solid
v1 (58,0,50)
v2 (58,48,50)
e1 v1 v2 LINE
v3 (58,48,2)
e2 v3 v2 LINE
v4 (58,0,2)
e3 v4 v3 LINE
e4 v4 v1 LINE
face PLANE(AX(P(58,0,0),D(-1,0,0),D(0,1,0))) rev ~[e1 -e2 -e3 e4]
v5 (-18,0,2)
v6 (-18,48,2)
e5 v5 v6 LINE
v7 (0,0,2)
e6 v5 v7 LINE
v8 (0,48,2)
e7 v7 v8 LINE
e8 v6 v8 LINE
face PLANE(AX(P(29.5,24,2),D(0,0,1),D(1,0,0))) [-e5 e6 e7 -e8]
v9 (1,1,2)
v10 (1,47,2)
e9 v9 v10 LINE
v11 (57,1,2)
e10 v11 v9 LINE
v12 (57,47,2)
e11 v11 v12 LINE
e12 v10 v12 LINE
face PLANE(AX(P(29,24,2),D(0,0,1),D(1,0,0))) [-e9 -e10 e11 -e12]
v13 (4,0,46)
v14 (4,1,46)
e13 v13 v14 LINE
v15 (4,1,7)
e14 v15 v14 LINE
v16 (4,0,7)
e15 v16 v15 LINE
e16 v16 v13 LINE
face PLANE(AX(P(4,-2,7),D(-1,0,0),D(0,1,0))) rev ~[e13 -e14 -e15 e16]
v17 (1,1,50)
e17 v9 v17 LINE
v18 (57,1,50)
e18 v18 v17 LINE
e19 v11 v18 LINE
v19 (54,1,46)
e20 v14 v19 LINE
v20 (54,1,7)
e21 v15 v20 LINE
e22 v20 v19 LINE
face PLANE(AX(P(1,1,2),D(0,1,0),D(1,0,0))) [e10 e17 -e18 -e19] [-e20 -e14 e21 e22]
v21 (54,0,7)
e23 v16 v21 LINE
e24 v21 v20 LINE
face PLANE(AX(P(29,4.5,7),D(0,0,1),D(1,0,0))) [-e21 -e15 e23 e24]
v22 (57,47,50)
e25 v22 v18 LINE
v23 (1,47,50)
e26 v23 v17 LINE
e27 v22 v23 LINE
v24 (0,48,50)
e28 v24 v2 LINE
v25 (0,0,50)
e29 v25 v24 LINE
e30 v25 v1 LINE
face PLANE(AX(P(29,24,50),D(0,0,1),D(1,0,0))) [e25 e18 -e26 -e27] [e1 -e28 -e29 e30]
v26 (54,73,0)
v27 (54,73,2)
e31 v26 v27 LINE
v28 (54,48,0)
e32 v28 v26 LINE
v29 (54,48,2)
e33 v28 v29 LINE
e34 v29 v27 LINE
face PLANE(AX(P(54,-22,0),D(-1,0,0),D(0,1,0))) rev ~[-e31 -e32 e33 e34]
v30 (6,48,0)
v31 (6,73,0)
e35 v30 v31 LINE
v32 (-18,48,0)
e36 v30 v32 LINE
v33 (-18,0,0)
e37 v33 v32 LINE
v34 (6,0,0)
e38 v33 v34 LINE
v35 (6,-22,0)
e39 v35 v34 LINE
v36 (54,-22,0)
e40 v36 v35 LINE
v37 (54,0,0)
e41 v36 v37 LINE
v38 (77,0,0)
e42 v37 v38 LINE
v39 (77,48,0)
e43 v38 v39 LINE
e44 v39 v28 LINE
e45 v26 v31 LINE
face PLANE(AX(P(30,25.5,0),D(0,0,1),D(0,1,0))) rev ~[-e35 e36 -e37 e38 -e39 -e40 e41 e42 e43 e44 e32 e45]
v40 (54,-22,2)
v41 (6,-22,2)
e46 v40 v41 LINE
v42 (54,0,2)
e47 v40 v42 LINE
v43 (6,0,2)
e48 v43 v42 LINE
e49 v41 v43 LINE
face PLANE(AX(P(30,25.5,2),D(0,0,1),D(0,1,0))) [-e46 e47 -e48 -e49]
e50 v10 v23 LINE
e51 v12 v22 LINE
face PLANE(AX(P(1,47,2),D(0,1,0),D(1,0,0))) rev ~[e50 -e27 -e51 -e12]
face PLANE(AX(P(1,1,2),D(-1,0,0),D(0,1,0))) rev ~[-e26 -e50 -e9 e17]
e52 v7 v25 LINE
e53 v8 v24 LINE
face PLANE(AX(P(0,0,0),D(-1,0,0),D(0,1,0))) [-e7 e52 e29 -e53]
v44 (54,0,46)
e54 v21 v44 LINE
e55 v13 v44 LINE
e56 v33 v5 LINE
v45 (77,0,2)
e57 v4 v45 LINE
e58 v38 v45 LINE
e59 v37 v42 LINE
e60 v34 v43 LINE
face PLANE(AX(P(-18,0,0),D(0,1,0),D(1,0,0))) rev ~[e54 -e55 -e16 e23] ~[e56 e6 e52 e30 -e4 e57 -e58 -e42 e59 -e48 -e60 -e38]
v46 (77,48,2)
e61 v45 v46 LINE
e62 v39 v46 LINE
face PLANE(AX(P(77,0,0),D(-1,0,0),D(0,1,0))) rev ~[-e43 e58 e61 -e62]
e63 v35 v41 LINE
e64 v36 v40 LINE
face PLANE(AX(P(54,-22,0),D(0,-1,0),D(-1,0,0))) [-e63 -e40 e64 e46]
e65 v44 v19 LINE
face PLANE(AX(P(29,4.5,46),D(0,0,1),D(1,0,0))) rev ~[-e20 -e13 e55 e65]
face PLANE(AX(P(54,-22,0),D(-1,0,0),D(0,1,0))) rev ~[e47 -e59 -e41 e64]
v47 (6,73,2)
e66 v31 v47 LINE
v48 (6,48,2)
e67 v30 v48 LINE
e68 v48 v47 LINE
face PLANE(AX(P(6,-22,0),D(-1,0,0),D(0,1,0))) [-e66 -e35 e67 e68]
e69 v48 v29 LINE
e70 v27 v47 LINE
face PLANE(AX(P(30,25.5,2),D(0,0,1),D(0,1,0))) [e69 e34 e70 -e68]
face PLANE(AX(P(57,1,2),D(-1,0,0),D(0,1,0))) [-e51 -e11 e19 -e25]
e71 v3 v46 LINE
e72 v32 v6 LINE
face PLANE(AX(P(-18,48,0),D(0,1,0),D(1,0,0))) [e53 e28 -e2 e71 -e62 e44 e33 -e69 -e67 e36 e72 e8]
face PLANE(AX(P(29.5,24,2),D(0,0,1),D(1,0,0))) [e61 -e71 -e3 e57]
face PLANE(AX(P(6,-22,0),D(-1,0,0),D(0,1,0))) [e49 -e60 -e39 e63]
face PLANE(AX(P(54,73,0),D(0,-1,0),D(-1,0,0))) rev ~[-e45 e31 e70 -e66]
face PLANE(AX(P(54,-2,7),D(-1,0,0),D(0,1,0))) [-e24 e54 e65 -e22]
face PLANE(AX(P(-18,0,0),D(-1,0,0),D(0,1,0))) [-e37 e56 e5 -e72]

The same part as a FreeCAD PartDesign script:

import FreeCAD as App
import Part
import Sketcher

V = App.Vector
Q = App.Units.Quantity

doc = App.newDocument("Part")
body = doc.addObject("PartDesign::Body", "Body")

sketch1 = body.newObject("Sketcher::SketchObject", "Sketch")
sketch1.AttachmentSupport = (doc.getObject("XY_Plane"), [""])
sketch1.MapMode = "FlatFace"
sketch1.addGeometry([
    Part.LineSegment(V(-18, 48, 0), V(-18, 0, 0)),
    Part.LineSegment(V(-18, 0, 0), V(77, 0, 0)),
    Part.LineSegment(V(77, 0, 0), V(77, 48, 0)),
    Part.LineSegment(V(77, 48, 0), V(-18, 48, 0)),
], False)
sketch1.addConstraint([
    Sketcher.Constraint("Coincident", 0, 2, 1, 1),
    Sketcher.Constraint("Coincident", 1, 2, 2, 1),
    Sketcher.Constraint("Coincident", 2, 2, 3, 1),
    Sketcher.Constraint("Coincident", 3, 2, 0, 1),
    Sketcher.Constraint("Vertical", 0),
    Sketcher.Constraint("Horizontal", 1),
    Sketcher.Constraint("Vertical", 2),
    Sketcher.Constraint("Horizontal", 3),
    Sketcher.Constraint("PointOnObject", 0, 2, -1),
    Sketcher.Constraint("DistanceX", 1, 1, 1, 2, Q("95 mm")),
    Sketcher.Constraint("DistanceY", 0, 2, 0, 1, Q("48 mm")),
    Sketcher.Constraint("DistanceX", 0, 2, -1, 1, Q("18 mm")),
])
pad1 = body.newObject("PartDesign::Pad", "Pad")
pad1.Profile = sketch1
pad1.Length = 2
body2 = doc.addObject("PartDesign::Body", "Body001")

sketch2 = body2.newObject("Sketcher::SketchObject", "Sketch001")
sketch2.AttachmentSupport = (doc.getObject("XY_Plane001"), [""])
sketch2.MapMode = "FlatFace"
sketch2.addGeometry([
    Part.LineSegment(V(0, 48, 0), V(0, 0, 0)),
    Part.LineSegment(V(0, 0, 0), V(95, 0, 0)),
    Part.LineSegment(V(95, 0, 0), V(95, 48, 0)),
    Part.LineSegment(V(95, 48, 0), V(0, 48, 0)),
], False)
sketch2.addConstraint([
    Sketcher.Constraint("Coincident", 0, 2, 1, 1),
    Sketcher.Constraint("Coincident", 1, 2, 2, 1),
    Sketcher.Constraint("Coincident", 2, 2, 3, 1),
    Sketcher.Constraint("Coincident", 3, 2, 0, 1),
    Sketcher.Constraint("Vertical", 0),
    Sketcher.Constraint("Horizontal", 1),
    Sketcher.Constraint("Vertical", 2),
    Sketcher.Constraint("Horizontal", 3),
    Sketcher.Constraint("Coincident", 0, 2, -1, 1),
    Sketcher.Constraint("DistanceX", 1, 1, 1, 2, Q("95 mm")),
    Sketcher.Constraint("DistanceY", 0, 2, 0, 1, Q("48 mm")),
])
pad2 = body2.newObject("PartDesign::Pad", "Pad001")
pad2.Profile = sketch2
pad2.Length = 2
body3 = doc.addObject("PartDesign::Body", "Body002")
doc.recompute()

body2.Placement = App.Placement(V(54, -22, 0), App.Rotation(V(0, 0, 1), 90))
boolean = body3.newObject("PartDesign::Boolean", "Boolean")
boolean.Type = "Fuse"
boolean.addObjects([body2])
body4 = doc.addObject("PartDesign::Body", "Body003")

sketch3 = body4.newObject("Sketcher::SketchObject", "Sketch002")
sketch3.AttachmentSupport = (doc.getObject("XY_Plane003"), [""])
sketch3.MapMode = "FlatFace"
sketch3.AttachmentOffset = App.Placement(V(0, 0, 7), App.Rotation())
sketch3.addGeometry([
    Part.LineSegment(V(4, 11, 0), V(4, -2, 0)),
    Part.LineSegment(V(4, -2, 0), V(54, -2, 0)),
    Part.LineSegment(V(54, -2, 0), V(54, 11, 0)),
    Part.LineSegment(V(54, 11, 0), V(4, 11, 0)),
], False)
sketch3.addConstraint([
    Sketcher.Constraint("Coincident", 0, 2, 1, 1),
    Sketcher.Constraint("Coincident", 1, 2, 2, 1),
    Sketcher.Constraint("Coincident", 2, 2, 3, 1),
    Sketcher.Constraint("Coincident", 3, 2, 0, 1),
    Sketcher.Constraint("Vertical", 0),
    Sketcher.Constraint("Horizontal", 1),
    Sketcher.Constraint("Vertical", 2),
    Sketcher.Constraint("Horizontal", 3),
    Sketcher.Constraint("DistanceX", 1, 1, 1, 2, Q("50 mm")),
    Sketcher.Constraint("DistanceY", 0, 2, 0, 1, Q("13 mm")),
    Sketcher.Constraint("DistanceX", -1, 1, 0, 2, Q("4 mm")),
    Sketcher.Constraint("DistanceY", 0, 2, -1, 1, Q("2 mm")),
])
pad3 = body4.newObject("PartDesign::Pad", "Pad002")
pad3.Profile = sketch3
pad3.Length = 39
body5 = doc.addObject("PartDesign::Body", "Body004")

sketch4 = body5.newObject("Sketcher::SketchObject", "Sketch003")
sketch4.AttachmentSupport = (doc.getObject("XY_Plane004"), [""])
sketch4.MapMode = "FlatFace"
sketch4.AttachmentOffset = App.Placement(V(0, 0, 2), App.Rotation())
sketch4.addGeometry([
    Part.LineSegment(V(1, 47, 0), V(1, 1, 0)),
    Part.LineSegment(V(1, 1, 0), V(57, 1, 0)),
    Part.LineSegment(V(57, 1, 0), V(57, 47, 0)),
    Part.LineSegment(V(57, 47, 0), V(1, 47, 0)),
], False)
sketch4.addConstraint([
    Sketcher.Constraint("Coincident", 0, 2, 1, 1),
    Sketcher.Constraint("Coincident", 1, 2, 2, 1),
    Sketcher.Constraint("Coincident", 2, 2, 3, 1),
    Sketcher.Constraint("Coincident", 3, 2, 0, 1),
    Sketcher.Constraint("Vertical", 0),
    Sketcher.Constraint("Horizontal", 1),
    Sketcher.Constraint("Vertical", 2),
    Sketcher.Constraint("Horizontal", 3),
    Sketcher.Constraint("DistanceX", 1, 1, 1, 2, Q("56 mm")),
    Sketcher.Constraint("DistanceY", 0, 2, 0, 1, Q("46 mm")),
    Sketcher.Constraint("DistanceX", -1, 1, 0, 2, Q("1 mm")),
    Sketcher.Constraint("DistanceY", -1, 1, 0, 2, Q("1 mm")),
])
pad4 = body5.newObject("PartDesign::Pad", "Pad003")
pad4.Profile = sketch4
pad4.Length = 59
body6 = doc.addObject("PartDesign::Body", "Body005")

sketch5 = body6.newObject("Sketcher::SketchObject", "Sketch004")
sketch5.AttachmentSupport = (doc.getObject("XY_Plane005"), [""])
sketch5.MapMode = "FlatFace"
sketch5.addGeometry([
    Part.LineSegment(V(0, 48, 0), V(0, 0, 0)),
    Part.LineSegment(V(0, 0, 0), V(58, 0, 0)),
    Part.LineSegment(V(58, 0, 0), V(58, 48, 0)),
    Part.LineSegment(V(58, 48, 0), V(0, 48, 0)),
], False)
sketch5.addConstraint([
    Sketcher.Constraint("Coincident", 0, 2, 1, 1),
    Sketcher.Constraint("Coincident", 1, 2, 2, 1),
    Sketcher.Constraint("Coincident", 2, 2, 3, 1),
    Sketcher.Constraint("Coincident", 3, 2, 0, 1),
    Sketcher.Constraint("Vertical", 0),
    Sketcher.Constraint("Horizontal", 1),
    Sketcher.Constraint("Vertical", 2),
    Sketcher.Constraint("Horizontal", 3),
    Sketcher.Constraint("Coincident", 0, 2, -1, 1),
    Sketcher.Constraint("DistanceX", 1, 1, 1, 2, Q("58 mm")),
    Sketcher.Constraint("DistanceY", 0, 2, 0, 1, Q("48 mm")),
])
pad5 = body6.newObject("PartDesign::Pad", "Pad004")
pad5.Profile = sketch5
pad5.Length = 50
doc.recompute()

boolean2 = body6.newObject("PartDesign::Boolean", "Boolean001")
boolean2.Type = "Cut"
boolean2.addObjects([body5])
doc.recompute()

boolean3 = body6.newObject("PartDesign::Boolean", "Boolean002")
boolean3.Type = "Cut"
boolean3.addObjects([body4])
doc.recompute()

boolean4 = body6.newObject("PartDesign::Boolean", "Boolean003")
boolean4.Type = "Fuse"
boolean4.addObjects([body])
doc.recompute()

boolean5 = body6.newObject("PartDesign::Boolean", "Boolean004")
boolean5.Type = "Fuse"
boolean5.addObjects([body3])

doc.recompute()
